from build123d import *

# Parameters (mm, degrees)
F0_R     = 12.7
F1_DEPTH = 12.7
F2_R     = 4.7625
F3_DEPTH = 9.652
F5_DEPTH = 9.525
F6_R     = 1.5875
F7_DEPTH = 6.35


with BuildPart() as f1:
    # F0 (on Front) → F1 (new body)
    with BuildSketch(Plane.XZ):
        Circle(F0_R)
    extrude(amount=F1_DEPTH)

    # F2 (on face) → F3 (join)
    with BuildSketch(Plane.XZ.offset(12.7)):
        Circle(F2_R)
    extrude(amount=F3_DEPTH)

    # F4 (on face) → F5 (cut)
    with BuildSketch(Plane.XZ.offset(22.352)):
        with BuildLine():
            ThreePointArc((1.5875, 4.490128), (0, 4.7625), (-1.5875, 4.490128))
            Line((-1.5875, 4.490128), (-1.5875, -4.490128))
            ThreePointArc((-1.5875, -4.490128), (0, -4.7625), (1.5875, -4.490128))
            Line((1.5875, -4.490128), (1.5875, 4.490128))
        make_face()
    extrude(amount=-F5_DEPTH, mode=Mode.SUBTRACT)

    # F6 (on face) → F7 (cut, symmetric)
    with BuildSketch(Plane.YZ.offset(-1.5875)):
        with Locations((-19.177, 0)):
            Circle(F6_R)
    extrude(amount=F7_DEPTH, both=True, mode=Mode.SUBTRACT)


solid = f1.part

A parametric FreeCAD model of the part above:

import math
import FreeCAD as App
import Part
import Sketcher
from FreeCAD import Vector
Q = App.Units.Quantity

doc = App.newDocument("Part")
body = doc.addObject("PartDesign::Body", "Body")

sketch1 = body.newObject("Sketcher::SketchObject", "Sketch")
sketch1.AttachmentSupport = (doc.getObject("XZ_Plane"), [""])
sketch1.MapMode = "FlatFace"
sketch1.addGeometry(Part.Circle(Vector(0, 0, 0), Vector(0, 0, 1), 13), False)
sketch1.addConstraint([
    Sketcher.Constraint("Coincident", 0, 3, -1, 1),
    Sketcher.Constraint("Diameter", 0, Q("1 in")),
])
pad1 = body.newObject("PartDesign::Pad", "Pad")
pad1.Profile = sketch1
pad1.Length = Q("0.5 in")

sketch2 = body.newObject("Sketcher::SketchObject", "Sketch001")
sketch2.AttachmentSupport = (doc.getObject("XZ_Plane"), [""])
sketch2.MapMode = "FlatFace"
sketch2.AttachmentOffset = App.Placement(Vector(0, 0, 0.5 * 25.4), App.Rotation())
sketch2.addGeometry(Part.Circle(Vector(0, 0, 0), Vector(0, 0, 1), 4.8), False)
sketch2.addConstraint([
    Sketcher.Constraint("Coincident", 0, 3, -1, 1),
    Sketcher.Constraint("Diameter", 0, Q("0.375 in")),
])
pad2 = body.newObject("PartDesign::Pad", "Pad001")
pad2.Profile = sketch2
pad2.Length = Q("0.38 in")

sketch3 = body.newObject("Sketcher::SketchObject", "Sketch002")
sketch3.AttachmentSupport = (doc.getObject("XZ_Plane"), [""])
sketch3.MapMode = "FlatFace"
sketch3.AttachmentOffset = App.Placement(Vector(0, 0, 0.88 * 25.4), App.Rotation())
sketch3.addGeometry([
    Part.ArcOfCircle(Part.Circle(Vector(0, 0, 0), Vector(0, 0, 1), 4.8), math.radians(71), math.radians(109)),
    Part.LineSegment(Vector(-1.6, 4.5, 0), Vector(-1.6, -4.5, 0)),
    Part.ArcOfCircle(Part.Circle(Vector(0, 0, 0), Vector(0, 0, 1), 4.8), math.radians(-109), math.radians(-71)),
    Part.LineSegment(Vector(1.6, -4.5, 0), Vector(1.6, 4.5, 0)),
], False)
sketch3.addConstraint([
    Sketcher.Constraint("Coincident", 0, 2, 1, 1),
    Sketcher.Constraint("Coincident", 1, 2, 2, 1),
    Sketcher.Constraint("Coincident", 2, 2, 3, 1),
    Sketcher.Constraint("Coincident", 3, 2, 0, 1),
    Sketcher.Constraint("Vertical", 1),
    Sketcher.Constraint("Vertical", 3),
    Sketcher.Constraint("Coincident", 0, 3, -1, 1),
    Sketcher.Constraint("Coincident", 2, 3, -1, 1),
    Sketcher.Constraint("Equal", 0, 2),
    Sketcher.Constraint("Horizontal", 1, 2, 2, 2),
    Sketcher.Constraint("Radius", 0, Q("0.1875 in")),
    Sketcher.Constraint("DistanceX", 0, 2, -1, 1, Q("0.0625 in")),
])
pocket1 = body.newObject("PartDesign::Pocket", "Pocket")
pocket1.Profile = sketch3
pocket1.Length = Q("0.375 in")

sketch4 = body.newObject("Sketcher::SketchObject", "Sketch003")
sketch4.AttachmentSupport = (doc.getObject("YZ_Plane"), [""])
sketch4.MapMode = "FlatFace"
sketch4.AttachmentOffset = App.Placement(Vector(0, 0, -0.0625 * 25.4), App.Rotation())
sketch4.addGeometry(Part.Circle(Vector(-19.2, 0, 0), Vector(0, 0, 1), 1.6), False)
sketch4.addConstraint([
    Sketcher.Constraint("PointOnObject", 0, 3, -1),
    Sketcher.Constraint("Diameter", 0, Q("0.125 in")),
    Sketcher.Constraint("DistanceX", 0, 3, -1, 1, Q("0.755 in")),
])
pocket2 = body.newObject("PartDesign::Pocket", "Pocket001")
pocket2.Profile = sketch4
pocket2.Length = Q("0.5 in")
pocket2.Midplane = True

doc.recompute()
